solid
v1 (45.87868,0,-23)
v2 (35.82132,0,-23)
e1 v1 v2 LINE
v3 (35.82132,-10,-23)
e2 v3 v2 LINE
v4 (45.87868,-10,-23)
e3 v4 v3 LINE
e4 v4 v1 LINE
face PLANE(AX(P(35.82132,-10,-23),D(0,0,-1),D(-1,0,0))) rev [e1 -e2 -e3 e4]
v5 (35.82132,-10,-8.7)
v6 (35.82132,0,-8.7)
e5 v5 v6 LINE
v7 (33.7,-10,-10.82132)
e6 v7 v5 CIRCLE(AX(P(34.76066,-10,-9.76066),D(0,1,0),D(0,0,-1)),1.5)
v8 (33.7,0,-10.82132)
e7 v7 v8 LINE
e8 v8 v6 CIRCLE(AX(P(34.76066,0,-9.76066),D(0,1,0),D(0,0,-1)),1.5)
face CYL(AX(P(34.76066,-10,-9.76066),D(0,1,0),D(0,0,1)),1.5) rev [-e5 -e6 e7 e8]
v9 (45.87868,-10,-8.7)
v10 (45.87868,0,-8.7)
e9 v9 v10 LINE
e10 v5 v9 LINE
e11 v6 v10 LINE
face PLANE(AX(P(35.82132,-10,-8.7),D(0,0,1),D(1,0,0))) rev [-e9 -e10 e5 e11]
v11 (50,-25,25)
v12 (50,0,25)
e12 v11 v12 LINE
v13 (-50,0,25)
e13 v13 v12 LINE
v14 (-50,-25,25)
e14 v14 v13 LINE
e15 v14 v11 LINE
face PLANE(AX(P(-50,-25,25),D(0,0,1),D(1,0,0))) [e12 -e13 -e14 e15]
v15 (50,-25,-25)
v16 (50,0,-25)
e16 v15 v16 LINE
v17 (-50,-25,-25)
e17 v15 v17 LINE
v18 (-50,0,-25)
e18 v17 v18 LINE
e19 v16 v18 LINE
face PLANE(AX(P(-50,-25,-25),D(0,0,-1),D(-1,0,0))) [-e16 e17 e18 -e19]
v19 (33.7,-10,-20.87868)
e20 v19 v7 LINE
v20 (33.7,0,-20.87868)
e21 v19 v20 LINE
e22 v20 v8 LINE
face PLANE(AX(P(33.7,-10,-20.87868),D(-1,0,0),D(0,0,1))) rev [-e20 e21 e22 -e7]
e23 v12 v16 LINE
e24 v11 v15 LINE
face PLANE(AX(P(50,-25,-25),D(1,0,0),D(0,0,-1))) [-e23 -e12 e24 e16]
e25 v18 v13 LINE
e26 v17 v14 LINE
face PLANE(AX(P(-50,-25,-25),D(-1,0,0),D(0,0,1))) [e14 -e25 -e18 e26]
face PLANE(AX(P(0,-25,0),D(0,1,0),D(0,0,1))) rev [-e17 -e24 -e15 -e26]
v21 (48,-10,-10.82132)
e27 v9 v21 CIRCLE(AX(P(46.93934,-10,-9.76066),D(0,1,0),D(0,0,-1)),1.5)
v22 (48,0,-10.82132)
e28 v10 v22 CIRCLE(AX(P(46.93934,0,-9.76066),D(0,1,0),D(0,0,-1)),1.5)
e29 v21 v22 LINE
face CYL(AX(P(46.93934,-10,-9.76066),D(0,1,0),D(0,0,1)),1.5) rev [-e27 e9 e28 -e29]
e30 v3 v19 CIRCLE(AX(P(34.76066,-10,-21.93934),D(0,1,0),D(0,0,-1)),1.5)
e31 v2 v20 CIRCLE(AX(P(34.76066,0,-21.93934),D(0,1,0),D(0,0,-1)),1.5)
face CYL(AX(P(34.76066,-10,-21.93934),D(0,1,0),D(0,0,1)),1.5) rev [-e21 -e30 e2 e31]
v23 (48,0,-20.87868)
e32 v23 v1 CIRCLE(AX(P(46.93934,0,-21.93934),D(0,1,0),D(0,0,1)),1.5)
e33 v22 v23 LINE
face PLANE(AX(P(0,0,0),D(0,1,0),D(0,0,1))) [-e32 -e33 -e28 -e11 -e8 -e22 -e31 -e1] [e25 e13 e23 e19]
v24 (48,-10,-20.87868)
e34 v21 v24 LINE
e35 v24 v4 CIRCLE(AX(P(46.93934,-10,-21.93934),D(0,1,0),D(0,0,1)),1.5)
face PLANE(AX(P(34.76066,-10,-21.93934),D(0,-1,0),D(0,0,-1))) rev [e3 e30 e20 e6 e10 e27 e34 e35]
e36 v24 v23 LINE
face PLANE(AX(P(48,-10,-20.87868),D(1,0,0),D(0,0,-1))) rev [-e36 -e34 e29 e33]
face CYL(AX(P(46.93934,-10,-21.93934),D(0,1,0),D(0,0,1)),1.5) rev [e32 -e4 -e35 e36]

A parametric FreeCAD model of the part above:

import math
import FreeCAD as App
import Part
import Sketcher
from FreeCAD import Vector
Q = App.Units.Quantity


def add_polygon(sketch, points):
    """Adds a closed chain of lines whose ends are joined by coincident constraints."""
    first, n = sketch.GeometryCount, len(points)
    for a, b in zip(points, points[1:] + points[:1]):
        sketch.addGeometry(Part.LineSegment(App.Vector(*a, 0), App.Vector(*b, 0)), False)
    for i in range(n):
        sketch.addConstraint(Sketcher.Constraint("Coincident", first + i, 2, first + (i + 1) % n, 1))

doc = App.newDocument("Part")
body = doc.addObject("PartDesign::Body", "Body")

sketch1 = body.newObject("Sketcher::SketchObject", "Sketch")
sketch1.AttachmentSupport = (doc.getObject("XZ_Plane"), [""])
sketch1.MapMode = "FlatFace"
add_polygon(sketch1, [(-50, -25), (-50, 25), (50, 25), (50, -25)])
sketch1.addConstraint([
    Sketcher.Constraint("Vertical", 0),
    Sketcher.Constraint("Horizontal", 1),
    Sketcher.Constraint("Vertical", 2),
    Sketcher.Constraint("Horizontal", 3),
    Sketcher.Constraint("Symmetric", 0, 2, 2, 2, -1, 1),
    Sketcher.Constraint("DistanceX", 1, 1, 1, 2, Q("100 mm")),
    Sketcher.Constraint("DistanceY", 0, 1, 0, 2, Q("50 mm")),
])
pad1 = body.newObject("PartDesign::Pad", "Pad")
pad1.Profile = sketch1
pad1.Length = 25

sketch2 = body.newObject("Sketcher::SketchObject", "Sketch001")
sketch2.AttachmentSupport = (doc.getObject("XZ_Plane"), [""])
sketch2.MapMode = "FlatFace"
sketch2.addGeometry([
    Part.LineSegment(Vector(33.7, -20.9, 0), Vector(33.7, -10.8, 0)),
    Part.ArcOfCircle(Part.Circle(Vector(34.8, -9.8, 0), Vector(0, 0, 1), 1.5), math.radians(45), math.radians(225)),
    Part.LineSegment(Vector(35.8, -8.7, 0), Vector(45.9, -8.7, 0)),
    Part.ArcOfCircle(Part.Circle(Vector(46.9, -9.8, 0), Vector(0, 0, 1), 1.5), math.radians(-45), math.radians(135)),
    Part.LineSegment(Vector(48, -10.8, 0), Vector(48, -20.9, 0)),
    Part.ArcOfCircle(Part.Circle(Vector(46.9, -21.9, 0), Vector(0, 0, 1), 1.5), math.radians(-135), math.radians(45)),
    Part.LineSegment(Vector(45.9, -23, 0), Vector(35.8, -23, 0)),
    Part.ArcOfCircle(Part.Circle(Vector(34.8, -21.9, 0), Vector(0, 0, 1), 1.5), math.radians(135), math.radians(315)),
], False)
sketch2.addConstraint([
    Sketcher.Constraint("Coincident", 0, 2, 1, 2),
    Sketcher.Constraint("Coincident", 1, 1, 2, 1),
    Sketcher.Constraint("Coincident", 2, 2, 3, 2),
    Sketcher.Constraint("Coincident", 3, 1, 4, 1),
    Sketcher.Constraint("Coincident", 4, 2, 5, 2),
    Sketcher.Constraint("Coincident", 5, 1, 6, 1),
    Sketcher.Constraint("Coincident", 6, 2, 7, 2),
    Sketcher.Constraint("Coincident", 7, 1, 0, 1),
    Sketcher.Constraint("Vertical", 0),
    Sketcher.Constraint("Horizontal", 2),
    Sketcher.Constraint("Vertical", 4),
    Sketcher.Constraint("Horizontal", 6),
    Sketcher.Constraint("Equal", 1, 3),
    Sketcher.Constraint("Equal", 3, 5),
    Sketcher.Constraint("Equal", 5, 7),
    Sketcher.Constraint("Horizontal", 1, 3, 3, 3),
    Sketcher.Constraint("Horizontal", 5, 3, 7, 3),
    Sketcher.Constraint("Horizontal", 0, 2, 3, 1),
    Sketcher.Constraint("Horizontal", 4, 2, 7, 1),
    Sketcher.Constraint("Vertical", 3, 3, 5, 3),
    Sketcher.Constraint("Vertical", 2, 2, 5, 1),
    Sketcher.Constraint("Equal", 6, 0),
    Sketcher.Constraint("Radius", 1, Q("1.5 mm")),
    Sketcher.Constraint("DistanceX", -1, 1, 3, 1, Q("48 mm")),
    Sketcher.Constraint("DistanceY", 5, 1, -1, 1, Q("23 mm")),
    Sketcher.Constraint("DistanceX", -1, 1, 0, 2, Q("33.7 mm")),
    Sketcher.Constraint("DistanceY", 1, 1, -1, 1, Q("8.7 mm")),
    Sketcher.Constraint("DistanceX", -1, 1, 1, 3, Q("34.76066 mm")),
])
pocket1 = body.newObject("PartDesign::Pocket", "Pocket")
pocket1.Profile = sketch2
pocket1.Length = 10
pocket1.Reversed = True

doc.recompute()
